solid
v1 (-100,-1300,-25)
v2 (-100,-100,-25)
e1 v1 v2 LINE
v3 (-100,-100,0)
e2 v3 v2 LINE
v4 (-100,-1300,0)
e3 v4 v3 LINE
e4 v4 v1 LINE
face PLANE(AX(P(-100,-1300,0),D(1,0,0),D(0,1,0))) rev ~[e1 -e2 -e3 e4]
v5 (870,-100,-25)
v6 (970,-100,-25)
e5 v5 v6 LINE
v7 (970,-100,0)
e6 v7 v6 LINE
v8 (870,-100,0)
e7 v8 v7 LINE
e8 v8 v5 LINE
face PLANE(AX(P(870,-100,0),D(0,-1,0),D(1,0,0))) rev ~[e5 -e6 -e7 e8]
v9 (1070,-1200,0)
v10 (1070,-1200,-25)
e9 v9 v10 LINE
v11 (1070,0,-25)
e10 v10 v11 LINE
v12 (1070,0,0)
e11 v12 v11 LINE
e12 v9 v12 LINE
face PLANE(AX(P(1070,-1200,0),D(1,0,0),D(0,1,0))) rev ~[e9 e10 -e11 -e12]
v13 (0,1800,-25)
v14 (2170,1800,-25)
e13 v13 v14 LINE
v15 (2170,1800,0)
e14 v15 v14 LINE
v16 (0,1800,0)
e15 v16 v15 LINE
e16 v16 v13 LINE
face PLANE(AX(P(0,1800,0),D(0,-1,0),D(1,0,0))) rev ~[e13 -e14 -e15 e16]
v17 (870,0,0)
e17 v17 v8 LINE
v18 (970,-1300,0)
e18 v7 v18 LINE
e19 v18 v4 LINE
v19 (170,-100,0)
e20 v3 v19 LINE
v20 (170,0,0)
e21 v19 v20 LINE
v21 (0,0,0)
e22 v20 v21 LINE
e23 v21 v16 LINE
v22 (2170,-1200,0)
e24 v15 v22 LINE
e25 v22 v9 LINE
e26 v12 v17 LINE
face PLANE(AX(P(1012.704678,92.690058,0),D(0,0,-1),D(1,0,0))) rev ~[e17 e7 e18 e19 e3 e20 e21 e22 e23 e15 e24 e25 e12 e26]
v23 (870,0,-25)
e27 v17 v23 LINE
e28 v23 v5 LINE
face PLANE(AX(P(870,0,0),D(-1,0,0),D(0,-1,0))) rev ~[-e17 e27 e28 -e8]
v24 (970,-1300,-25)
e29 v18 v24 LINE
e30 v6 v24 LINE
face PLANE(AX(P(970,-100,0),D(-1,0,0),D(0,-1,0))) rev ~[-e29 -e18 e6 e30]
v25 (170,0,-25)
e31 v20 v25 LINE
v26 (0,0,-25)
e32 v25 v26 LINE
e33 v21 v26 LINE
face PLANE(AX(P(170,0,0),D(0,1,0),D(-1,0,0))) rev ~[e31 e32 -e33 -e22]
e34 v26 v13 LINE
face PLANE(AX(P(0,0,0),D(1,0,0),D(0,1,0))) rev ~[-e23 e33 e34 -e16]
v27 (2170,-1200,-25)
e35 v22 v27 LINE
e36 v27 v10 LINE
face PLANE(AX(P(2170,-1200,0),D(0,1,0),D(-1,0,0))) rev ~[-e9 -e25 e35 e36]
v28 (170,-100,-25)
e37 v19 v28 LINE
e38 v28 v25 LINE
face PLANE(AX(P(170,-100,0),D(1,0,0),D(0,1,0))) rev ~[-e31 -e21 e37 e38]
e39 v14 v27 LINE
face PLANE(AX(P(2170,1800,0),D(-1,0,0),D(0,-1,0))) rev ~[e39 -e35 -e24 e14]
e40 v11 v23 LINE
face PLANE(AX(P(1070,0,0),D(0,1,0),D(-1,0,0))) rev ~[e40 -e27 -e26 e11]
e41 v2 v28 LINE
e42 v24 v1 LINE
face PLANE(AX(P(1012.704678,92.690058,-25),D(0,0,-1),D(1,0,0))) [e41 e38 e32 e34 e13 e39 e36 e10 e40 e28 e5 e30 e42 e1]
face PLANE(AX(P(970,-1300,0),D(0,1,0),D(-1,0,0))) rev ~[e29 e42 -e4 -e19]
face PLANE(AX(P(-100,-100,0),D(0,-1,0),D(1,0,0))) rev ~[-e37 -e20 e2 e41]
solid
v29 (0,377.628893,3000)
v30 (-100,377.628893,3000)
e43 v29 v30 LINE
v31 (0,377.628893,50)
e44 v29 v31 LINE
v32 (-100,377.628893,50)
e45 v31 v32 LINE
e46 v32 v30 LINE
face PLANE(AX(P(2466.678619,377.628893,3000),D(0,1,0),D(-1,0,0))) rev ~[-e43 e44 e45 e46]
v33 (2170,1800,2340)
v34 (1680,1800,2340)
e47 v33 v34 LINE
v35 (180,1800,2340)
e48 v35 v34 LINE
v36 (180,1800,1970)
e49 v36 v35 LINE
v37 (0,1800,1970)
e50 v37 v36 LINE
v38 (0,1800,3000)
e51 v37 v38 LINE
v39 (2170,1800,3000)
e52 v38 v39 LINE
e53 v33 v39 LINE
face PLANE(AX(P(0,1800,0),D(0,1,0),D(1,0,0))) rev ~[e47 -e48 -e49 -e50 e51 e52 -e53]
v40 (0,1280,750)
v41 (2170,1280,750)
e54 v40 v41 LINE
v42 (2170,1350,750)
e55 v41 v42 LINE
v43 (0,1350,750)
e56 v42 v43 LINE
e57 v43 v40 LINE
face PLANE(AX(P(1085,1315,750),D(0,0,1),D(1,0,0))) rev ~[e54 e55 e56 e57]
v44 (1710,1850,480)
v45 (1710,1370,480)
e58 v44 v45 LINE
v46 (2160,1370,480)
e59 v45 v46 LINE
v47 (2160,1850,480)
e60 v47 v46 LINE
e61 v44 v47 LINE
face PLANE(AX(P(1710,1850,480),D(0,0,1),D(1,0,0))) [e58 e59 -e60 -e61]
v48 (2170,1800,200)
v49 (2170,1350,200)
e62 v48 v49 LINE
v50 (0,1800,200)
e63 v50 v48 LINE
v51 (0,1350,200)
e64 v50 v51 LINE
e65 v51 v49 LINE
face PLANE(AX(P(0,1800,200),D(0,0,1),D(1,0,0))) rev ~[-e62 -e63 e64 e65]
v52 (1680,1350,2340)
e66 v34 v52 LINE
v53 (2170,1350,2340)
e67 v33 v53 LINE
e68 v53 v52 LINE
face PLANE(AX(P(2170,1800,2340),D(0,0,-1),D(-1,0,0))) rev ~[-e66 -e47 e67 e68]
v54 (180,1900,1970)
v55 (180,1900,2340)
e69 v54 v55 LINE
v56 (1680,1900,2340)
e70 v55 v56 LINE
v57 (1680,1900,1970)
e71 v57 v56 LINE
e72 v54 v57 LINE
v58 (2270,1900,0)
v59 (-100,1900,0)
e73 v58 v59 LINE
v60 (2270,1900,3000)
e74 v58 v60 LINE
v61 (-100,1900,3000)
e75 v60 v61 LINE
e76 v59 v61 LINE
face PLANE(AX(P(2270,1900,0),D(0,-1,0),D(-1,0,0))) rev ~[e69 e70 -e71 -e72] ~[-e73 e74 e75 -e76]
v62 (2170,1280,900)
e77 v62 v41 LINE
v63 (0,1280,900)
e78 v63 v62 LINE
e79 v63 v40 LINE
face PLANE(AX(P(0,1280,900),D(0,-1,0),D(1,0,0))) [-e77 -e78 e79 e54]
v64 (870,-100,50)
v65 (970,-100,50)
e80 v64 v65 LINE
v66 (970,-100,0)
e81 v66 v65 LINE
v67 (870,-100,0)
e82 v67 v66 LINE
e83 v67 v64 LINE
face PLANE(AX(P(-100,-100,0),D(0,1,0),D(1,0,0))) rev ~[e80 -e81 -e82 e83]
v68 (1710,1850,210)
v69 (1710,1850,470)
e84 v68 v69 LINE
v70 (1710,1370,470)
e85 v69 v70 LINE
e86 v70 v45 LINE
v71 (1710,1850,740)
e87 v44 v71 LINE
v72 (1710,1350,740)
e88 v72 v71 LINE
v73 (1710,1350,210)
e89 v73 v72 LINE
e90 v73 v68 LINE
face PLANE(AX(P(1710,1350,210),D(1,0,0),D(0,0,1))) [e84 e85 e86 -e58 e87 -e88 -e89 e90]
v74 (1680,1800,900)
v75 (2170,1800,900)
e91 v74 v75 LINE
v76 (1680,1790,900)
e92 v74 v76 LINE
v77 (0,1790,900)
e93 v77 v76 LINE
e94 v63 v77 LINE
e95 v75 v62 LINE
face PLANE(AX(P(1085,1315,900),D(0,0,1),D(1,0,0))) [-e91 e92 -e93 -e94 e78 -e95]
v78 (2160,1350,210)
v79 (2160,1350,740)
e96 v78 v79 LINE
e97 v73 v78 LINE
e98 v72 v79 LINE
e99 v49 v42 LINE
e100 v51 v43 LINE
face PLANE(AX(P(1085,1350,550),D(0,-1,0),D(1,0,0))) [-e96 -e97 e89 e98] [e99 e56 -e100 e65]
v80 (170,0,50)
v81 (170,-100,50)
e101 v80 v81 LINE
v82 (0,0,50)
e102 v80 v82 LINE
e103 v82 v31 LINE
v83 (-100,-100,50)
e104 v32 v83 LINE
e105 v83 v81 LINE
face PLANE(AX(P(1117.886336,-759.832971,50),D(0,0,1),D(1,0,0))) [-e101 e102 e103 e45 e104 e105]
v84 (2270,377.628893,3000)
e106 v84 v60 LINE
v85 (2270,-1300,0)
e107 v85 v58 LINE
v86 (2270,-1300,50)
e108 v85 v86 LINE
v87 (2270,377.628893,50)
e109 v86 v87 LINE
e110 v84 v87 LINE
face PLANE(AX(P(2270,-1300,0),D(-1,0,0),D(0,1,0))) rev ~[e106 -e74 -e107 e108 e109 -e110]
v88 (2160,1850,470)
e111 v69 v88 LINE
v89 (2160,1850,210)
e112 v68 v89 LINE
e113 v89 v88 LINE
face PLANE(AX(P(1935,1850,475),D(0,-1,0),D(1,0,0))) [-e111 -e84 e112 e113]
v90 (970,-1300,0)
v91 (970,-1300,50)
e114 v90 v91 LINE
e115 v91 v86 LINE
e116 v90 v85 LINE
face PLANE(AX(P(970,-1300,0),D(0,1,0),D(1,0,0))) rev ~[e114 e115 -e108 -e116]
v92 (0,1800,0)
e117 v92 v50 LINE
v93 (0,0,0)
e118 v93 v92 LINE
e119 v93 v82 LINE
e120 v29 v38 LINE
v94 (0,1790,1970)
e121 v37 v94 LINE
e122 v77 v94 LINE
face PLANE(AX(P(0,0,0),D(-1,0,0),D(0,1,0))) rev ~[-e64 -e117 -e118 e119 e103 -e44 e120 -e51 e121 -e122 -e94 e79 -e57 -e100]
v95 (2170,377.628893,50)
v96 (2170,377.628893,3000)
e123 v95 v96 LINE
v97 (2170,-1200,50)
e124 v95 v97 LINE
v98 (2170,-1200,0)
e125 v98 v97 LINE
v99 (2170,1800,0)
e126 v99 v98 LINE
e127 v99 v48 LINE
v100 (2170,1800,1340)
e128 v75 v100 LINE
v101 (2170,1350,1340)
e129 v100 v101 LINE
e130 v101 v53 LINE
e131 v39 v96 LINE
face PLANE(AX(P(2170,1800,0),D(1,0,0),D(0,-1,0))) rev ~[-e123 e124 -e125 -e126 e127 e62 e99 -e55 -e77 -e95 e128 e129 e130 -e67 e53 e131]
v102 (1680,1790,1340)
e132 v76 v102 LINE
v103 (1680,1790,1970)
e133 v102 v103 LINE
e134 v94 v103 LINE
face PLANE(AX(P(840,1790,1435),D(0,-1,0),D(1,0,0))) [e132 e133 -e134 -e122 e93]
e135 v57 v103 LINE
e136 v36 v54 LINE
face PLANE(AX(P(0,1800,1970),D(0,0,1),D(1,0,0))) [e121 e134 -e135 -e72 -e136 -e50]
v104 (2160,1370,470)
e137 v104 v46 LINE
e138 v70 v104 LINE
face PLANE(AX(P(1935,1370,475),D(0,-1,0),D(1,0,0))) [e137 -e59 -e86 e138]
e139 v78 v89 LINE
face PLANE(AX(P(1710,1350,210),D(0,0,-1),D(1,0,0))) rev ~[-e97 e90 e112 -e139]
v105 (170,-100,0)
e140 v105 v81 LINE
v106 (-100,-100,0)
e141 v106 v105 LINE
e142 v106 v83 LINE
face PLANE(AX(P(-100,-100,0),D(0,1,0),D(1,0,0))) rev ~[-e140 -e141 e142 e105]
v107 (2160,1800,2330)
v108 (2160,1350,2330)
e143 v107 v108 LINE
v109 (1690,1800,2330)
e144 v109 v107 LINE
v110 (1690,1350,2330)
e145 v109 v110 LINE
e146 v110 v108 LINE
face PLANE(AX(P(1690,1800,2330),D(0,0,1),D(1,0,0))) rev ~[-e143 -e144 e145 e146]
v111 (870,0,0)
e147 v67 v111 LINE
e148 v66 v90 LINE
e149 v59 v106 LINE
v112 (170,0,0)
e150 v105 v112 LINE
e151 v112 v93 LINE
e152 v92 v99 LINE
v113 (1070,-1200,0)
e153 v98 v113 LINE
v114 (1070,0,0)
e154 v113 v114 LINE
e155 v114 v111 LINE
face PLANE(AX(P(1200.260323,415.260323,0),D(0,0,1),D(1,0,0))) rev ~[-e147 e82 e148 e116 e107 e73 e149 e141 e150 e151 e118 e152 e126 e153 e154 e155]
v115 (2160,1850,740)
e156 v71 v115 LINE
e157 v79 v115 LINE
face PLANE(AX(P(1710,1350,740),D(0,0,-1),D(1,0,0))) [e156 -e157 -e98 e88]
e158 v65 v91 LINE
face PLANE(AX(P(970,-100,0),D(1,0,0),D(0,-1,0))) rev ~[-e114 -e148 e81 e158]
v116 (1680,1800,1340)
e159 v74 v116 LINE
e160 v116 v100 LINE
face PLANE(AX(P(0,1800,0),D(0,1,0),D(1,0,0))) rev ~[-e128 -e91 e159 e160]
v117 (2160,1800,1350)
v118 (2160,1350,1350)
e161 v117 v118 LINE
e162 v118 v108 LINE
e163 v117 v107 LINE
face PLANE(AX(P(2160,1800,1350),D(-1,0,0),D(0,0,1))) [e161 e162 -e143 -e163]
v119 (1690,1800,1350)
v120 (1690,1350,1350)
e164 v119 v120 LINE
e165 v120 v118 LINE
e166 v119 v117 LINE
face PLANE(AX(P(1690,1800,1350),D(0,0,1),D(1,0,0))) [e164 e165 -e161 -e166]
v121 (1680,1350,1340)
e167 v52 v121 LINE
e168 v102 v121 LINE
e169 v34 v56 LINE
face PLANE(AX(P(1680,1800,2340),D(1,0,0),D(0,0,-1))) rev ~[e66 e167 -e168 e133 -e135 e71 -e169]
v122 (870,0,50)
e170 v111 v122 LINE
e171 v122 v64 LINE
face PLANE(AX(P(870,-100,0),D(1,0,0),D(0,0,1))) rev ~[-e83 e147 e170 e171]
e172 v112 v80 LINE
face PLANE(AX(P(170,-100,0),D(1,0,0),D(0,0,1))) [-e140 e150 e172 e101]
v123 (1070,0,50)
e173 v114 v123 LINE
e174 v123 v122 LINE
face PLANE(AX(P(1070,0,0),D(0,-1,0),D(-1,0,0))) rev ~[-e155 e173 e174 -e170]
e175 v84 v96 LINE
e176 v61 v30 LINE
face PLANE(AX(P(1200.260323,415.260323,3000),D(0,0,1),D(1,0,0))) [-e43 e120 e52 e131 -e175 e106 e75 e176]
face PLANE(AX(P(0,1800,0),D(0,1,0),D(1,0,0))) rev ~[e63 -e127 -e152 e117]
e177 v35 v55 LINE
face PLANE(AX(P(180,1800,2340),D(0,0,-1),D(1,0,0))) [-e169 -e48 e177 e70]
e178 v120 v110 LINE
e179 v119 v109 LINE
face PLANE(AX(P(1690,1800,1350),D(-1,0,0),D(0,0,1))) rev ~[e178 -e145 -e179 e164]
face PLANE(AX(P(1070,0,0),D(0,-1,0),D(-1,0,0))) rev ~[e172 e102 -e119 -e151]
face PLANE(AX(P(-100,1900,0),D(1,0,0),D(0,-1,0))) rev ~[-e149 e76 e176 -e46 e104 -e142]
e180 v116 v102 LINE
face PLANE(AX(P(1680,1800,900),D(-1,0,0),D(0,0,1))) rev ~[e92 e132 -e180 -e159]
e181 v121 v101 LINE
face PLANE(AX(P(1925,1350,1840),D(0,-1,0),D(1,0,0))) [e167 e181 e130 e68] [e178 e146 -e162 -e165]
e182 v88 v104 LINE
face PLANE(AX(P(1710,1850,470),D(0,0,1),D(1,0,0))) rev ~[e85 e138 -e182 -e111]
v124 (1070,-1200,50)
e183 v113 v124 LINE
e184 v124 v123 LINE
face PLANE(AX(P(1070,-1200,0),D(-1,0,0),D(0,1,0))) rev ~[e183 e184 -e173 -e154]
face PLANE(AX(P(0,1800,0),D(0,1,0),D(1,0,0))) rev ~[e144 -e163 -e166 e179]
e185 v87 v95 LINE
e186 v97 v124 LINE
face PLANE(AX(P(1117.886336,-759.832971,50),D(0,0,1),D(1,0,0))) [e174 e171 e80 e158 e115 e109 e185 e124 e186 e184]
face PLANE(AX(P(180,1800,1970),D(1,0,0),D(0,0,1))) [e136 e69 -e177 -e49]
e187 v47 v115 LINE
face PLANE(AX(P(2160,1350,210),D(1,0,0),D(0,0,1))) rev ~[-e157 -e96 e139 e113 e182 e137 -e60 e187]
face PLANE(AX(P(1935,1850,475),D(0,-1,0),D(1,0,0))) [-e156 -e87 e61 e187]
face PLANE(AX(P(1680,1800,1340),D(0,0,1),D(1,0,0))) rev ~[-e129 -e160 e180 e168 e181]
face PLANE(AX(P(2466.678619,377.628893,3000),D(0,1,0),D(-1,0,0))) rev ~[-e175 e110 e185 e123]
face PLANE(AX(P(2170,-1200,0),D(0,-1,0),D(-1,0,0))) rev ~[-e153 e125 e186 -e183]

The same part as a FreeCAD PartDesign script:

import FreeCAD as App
import Part
import Sketcher

doc = App.newDocument("Part")
body = doc.addObject("PartDesign::Body", "Body")

# Sketch on XY plane
sketch1 = body.newObject("Sketcher::SketchObject", "Sketch")
sketch1.AttachmentSupport = (doc.getObject("XY_Plane"), [""])
sketch1.MapMode = "FlatFace"
sketch1.addGeometry(Part.LineSegment(App.Vector(2270, 1900, 0), App.Vector(-100, 1900, 0)), False)
sketch1.addGeometry(Part.LineSegment(App.Vector(-100, 1900, 0), App.Vector(-100, -100, 0)), False)
sketch1.addGeometry(Part.LineSegment(App.Vector(-100, -100, 0), App.Vector(970, -100, 0)), False)
sketch1.addGeometry(Part.LineSegment(App.Vector(970, -100, 0), App.Vector(970, -1300, 0)), False)
sketch1.addGeometry(Part.LineSegment(App.Vector(970, -1300, 0), App.Vector(2270, -1300, 0)), False)
sketch1.addGeometry(Part.LineSegment(App.Vector(2270, -1300, 0), App.Vector(2270, 1900, 0)), False)
sketch1.addGeometry(Part.LineSegment(App.Vector(1070, -1200, 0), App.Vector(1070, 0, 0)), False)
sketch1.addGeometry(Part.LineSegment(App.Vector(1070, 0, 0), App.Vector(0, 0, 0)), False)
sketch1.addGeometry(Part.LineSegment(App.Vector(0, 0, 0), App.Vector(0, 1800, 0)), False)
sketch1.addGeometry(Part.LineSegment(App.Vector(0, 1800, 0), App.Vector(2170, 1800, 0)), False)
sketch1.addGeometry(Part.LineSegment(App.Vector(2170, 1800, 0), App.Vector(2170, -1200, 0)), False)
sketch1.addGeometry(Part.LineSegment(App.Vector(2170, -1200, 0), App.Vector(1070, -1200, 0)), False)
sketch1.addConstraint(Sketcher.Constraint("Coincident", 0, 2, 1, 1))
sketch1.addConstraint(Sketcher.Constraint("Coincident", 1, 2, 2, 1))
sketch1.addConstraint(Sketcher.Constraint("Coincident", 2, 2, 3, 1))
sketch1.addConstraint(Sketcher.Constraint("Coincident", 3, 2, 4, 1))
sketch1.addConstraint(Sketcher.Constraint("Coincident", 4, 2, 5, 1))
sketch1.addConstraint(Sketcher.Constraint("Coincident", 5, 2, 0, 1))
sketch1.addConstraint(Sketcher.Constraint("Coincident", 6, 2, 7, 1))
sketch1.addConstraint(Sketcher.Constraint("Coincident", 7, 2, 8, 1))
sketch1.addConstraint(Sketcher.Constraint("Coincident", 8, 2, 9, 1))
sketch1.addConstraint(Sketcher.Constraint("Coincident", 9, 2, 10, 1))
sketch1.addConstraint(Sketcher.Constraint("Coincident", 10, 2, 11, 1))
sketch1.addConstraint(Sketcher.Constraint("Coincident", 11, 2, 6, 1))
sketch1.addConstraint(Sketcher.Constraint("Horizontal", 0))
sketch1.addConstraint(Sketcher.Constraint("Vertical", 1))
sketch1.addConstraint(Sketcher.Constraint("Horizontal", 2))
sketch1.addConstraint(Sketcher.Constraint("Vertical", 3))
sketch1.addConstraint(Sketcher.Constraint("Horizontal", 4))
sketch1.addConstraint(Sketcher.Constraint("Vertical", 5))
sketch1.addConstraint(Sketcher.Constraint("Vertical", 6))
sketch1.addConstraint(Sketcher.Constraint("Horizontal", 7))
sketch1.addConstraint(Sketcher.Constraint("Vertical", 8))
sketch1.addConstraint(Sketcher.Constraint("Horizontal", 9))
sketch1.addConstraint(Sketcher.Constraint("Vertical", 10))
sketch1.addConstraint(Sketcher.Constraint("Horizontal", 11))
sketch1.addConstraint(Sketcher.Constraint("Coincident", 7, 2, -1, 1))
sketch1.addConstraint(Sketcher.Constraint("Equal", 2, 7))
sketch1.addConstraint(Sketcher.Constraint("Equal", 3, 6))
sketch1.addConstraint(Sketcher.Constraint("DistanceX", 0, 2, 0, 1, 2370.0))
sketch1.addConstraint(Sketcher.Constraint("DistanceX", 2, 1, 2, 2, 1070.0))
sketch1.addConstraint(Sketcher.Constraint("DistanceX", 9, 1, 9, 2, 2170.0))
sketch1.addConstraint(Sketcher.Constraint("DistanceY", 1, 2, 1, 1, 2000.0))
sketch1.addConstraint(Sketcher.Constraint("DistanceY", 3, 2, 3, 1, 1200.0))
sketch1.addConstraint(Sketcher.Constraint("DistanceY", 8, 1, 8, 2, 1800.0))
sketch1.addConstraint(Sketcher.Constraint("DistanceX", 0, 2, -1, 1, 100.0))
sketch1.addConstraint(Sketcher.Constraint("DistanceY", -1, 1, 0, 2, 1900.0))
pad1 = body.newObject("PartDesign::Pad", "Pad")
pad1.Profile = sketch1
pad1.Length = 3000

# Sketch on XZ plane
sketch2 = body.newObject("Sketcher::SketchObject", "Sketch001")
sketch2.AttachmentSupport = (doc.getObject("XZ_Plane"), [""])
sketch2.MapMode = "FlatFace"
sketch2.AttachmentOffset = App.Placement(App.Vector(0, 0, 100), App.Rotation())
sketch2.addGeometry(Part.LineSegment(App.Vector(170, 2100, 0), App.Vector(170, 0, 0)), False)
sketch2.addGeometry(Part.LineSegment(App.Vector(170, 0, 0), App.Vector(870, 0, 0)), False)
sketch2.addGeometry(Part.LineSegment(App.Vector(870, 0, 0), App.Vector(870, 2100, 0)), False)
sketch2.addGeometry(Part.LineSegment(App.Vector(870, 2100, 0), App.Vector(170, 2100, 0)), False)
sketch2.addConstraint(Sketcher.Constraint("Coincident", 0, 2, 1, 1))
sketch2.addConstraint(Sketcher.Constraint("Coincident", 1, 2, 2, 1))
sketch2.addConstraint(Sketcher.Constraint("Coincident", 2, 2, 3, 1))
sketch2.addConstraint(Sketcher.Constraint("Coincident", 3, 2, 0, 1))
sketch2.addConstraint(Sketcher.Constraint("Vertical", 0))
sketch2.addConstraint(Sketcher.Constraint("Horizontal", 1))
sketch2.addConstraint(Sketcher.Constraint("Vertical", 2))
sketch2.addConstraint(Sketcher.Constraint("Horizontal", 3))
sketch2.addConstraint(Sketcher.Constraint("PointOnObject", 0, 2, -1))
sketch2.addConstraint(Sketcher.Constraint("DistanceX", 1, 1, 1, 2, 700.0))
sketch2.addConstraint(Sketcher.Constraint("DistanceY", 0, 2, 0, 1, 2100.0))
sketch2.addConstraint(Sketcher.Constraint("DistanceX", -1, 1, 0, 2, 170.0))
pocket1 = body.newObject("PartDesign::Pocket", "Pocket")
pocket1.Profile = sketch2
pocket1.Length = 100

# Sketch on XZ plane
sketch3 = body.newObject("Sketcher::SketchObject", "Sketch002")
sketch3.AttachmentSupport = (doc.getObject("XZ_Plane"), [""])
sketch3.MapMode = "FlatFace"
sketch3.AttachmentOffset = App.Placement(App.Vector(0, 0, -1800), App.Rotation())
sketch3.addGeometry(Part.LineSegment(App.Vector(180, 2340, 0), App.Vector(180, 1970, 0)), False)
sketch3.addGeometry(Part.LineSegment(App.Vector(180, 1970, 0), App.Vector(1680, 1970, 0)), False)
sketch3.addGeometry(Part.LineSegment(App.Vector(1680, 1970, 0), App.Vector(1680, 2340, 0)), False)
sketch3.addGeometry(Part.LineSegment(App.Vector(1680, 2340, 0), App.Vector(180, 2340, 0)), False)
sketch3.addConstraint(Sketcher.Constraint("Coincident", 0, 2, 1, 1))
sketch3.addConstraint(Sketcher.Constraint("Coincident", 1, 2, 2, 1))
sketch3.addConstraint(Sketcher.Constraint("Coincident", 2, 2, 3, 1))
sketch3.addConstraint(Sketcher.Constraint("Coincident", 3, 2, 0, 1))
sketch3.addConstraint(Sketcher.Constraint("Vertical", 0))
sketch3.addConstraint(Sketcher.Constraint("Horizontal", 1))
sketch3.addConstraint(Sketcher.Constraint("Vertical", 2))
sketch3.addConstraint(Sketcher.Constraint("Horizontal", 3))
sketch3.addConstraint(Sketcher.Constraint("DistanceX", 1, 1, 1, 2, 1500.0))
sketch3.addConstraint(Sketcher.Constraint("DistanceY", 0, 2, 0, 1, 370.0))
sketch3.addConstraint(Sketcher.Constraint("DistanceX", -1, 1, 0, 2, 180.0))
sketch3.addConstraint(Sketcher.Constraint("DistanceY", -1, 1, 0, 2, 1970.0))
pocket2 = body.newObject("PartDesign::Pocket", "Pocket001")
pocket2.Profile = sketch3
pocket2.Type = "ThroughAll"

# Sketch on XY plane
sketch4 = body.newObject("Sketcher::SketchObject", "Sketch003")
sketch4.AttachmentSupport = (doc.getObject("XY_Plane"), [""])
sketch4.MapMode = "FlatFace"
sketch4.AttachmentOffset = App.Placement(App.Vector(0, 0, 3000), App.Rotation())
sketch4.addGeometry(Part.LineSegment(App.Vector(-472, -1550, 0), App.Vector(2467, -1550, 0)), False)
sketch4.addGeometry(Part.LineSegment(App.Vector(2467, -1550, 0), App.Vector(2467, 378, 0)), False)
sketch4.addGeometry(Part.LineSegment(App.Vector(2467, 378, 0), App.Vector(-472, 378, 0)), False)
sketch4.addGeometry(Part.LineSegment(App.Vector(-472, 378, 0), App.Vector(-472, -1550, 0)), False)
sketch4.addConstraint(Sketcher.Constraint("Coincident", 0, 2, 1, 1))
sketch4.addConstraint(Sketcher.Constraint("Coincident", 1, 2, 2, 1))
sketch4.addConstraint(Sketcher.Constraint("Coincident", 2, 2, 3, 1))
sketch4.addConstraint(Sketcher.Constraint("Coincident", 3, 2, 0, 1))
sketch4.addConstraint(Sketcher.Constraint("Horizontal", 0))
sketch4.addConstraint(Sketcher.Constraint("Vertical", 1))
sketch4.addConstraint(Sketcher.Constraint("Horizontal", 2))
sketch4.addConstraint(Sketcher.Constraint("Vertical", 3))
sketch4.addConstraint(Sketcher.Constraint("DistanceY", 0, 2, -1, 1, 1550.028801))
sketch4.addConstraint(Sketcher.Constraint("DistanceX", 0, 1, 0, 2, 2938.759506))
sketch4.addConstraint(Sketcher.Constraint("DistanceY", 1, 1, 1, 2, 1927.657694))
sketch4.addConstraint(Sketcher.Constraint("DistanceX", -1, 1, 0, 2, 2466.678619))
pocket3 = body.newObject("PartDesign::Pocket", "Pocket002")
pocket3.Profile = sketch4
pocket3.Length = 2950

# Sketch on XZ plane
sketch5 = body.newObject("Sketcher::SketchObject", "Sketch004")
sketch5.AttachmentSupport = (doc.getObject("XZ_Plane"), [""])
sketch5.MapMode = "FlatFace"
sketch5.AttachmentOffset = App.Placement(App.Vector(0, 0, -1800), App.Rotation())
sketch5.addGeometry(Part.LineSegment(App.Vector(0, 900, 0), App.Vector(0, 200, 0)), False)
sketch5.addGeometry(Part.LineSegment(App.Vector(0, 200, 0), App.Vector(2170, 200, 0)), False)
sketch5.addGeometry(Part.LineSegment(App.Vector(2170, 200, 0), App.Vector(2170, 900, 0)), False)
sketch5.addGeometry(Part.LineSegment(App.Vector(2170, 900, 0), App.Vector(0, 900, 0)), False)
sketch5.addConstraint(Sketcher.Constraint("Coincident", 0, 2, 1, 1))
sketch5.addConstraint(Sketcher.Constraint("Coincident", 1, 2, 2, 1))
sketch5.addConstraint(Sketcher.Constraint("Coincident", 2, 2, 3, 1))
sketch5.addConstraint(Sketcher.Constraint("Coincident", 3, 2, 0, 1))
sketch5.addConstraint(Sketcher.Constraint("Vertical", 0))
sketch5.addConstraint(Sketcher.Constraint("Horizontal", 1))
sketch5.addConstraint(Sketcher.Constraint("Vertical", 2))
sketch5.addConstraint(Sketcher.Constraint("Horizontal", 3))
sketch5.addConstraint(Sketcher.Constraint("PointOnObject", 0, 2, -2))
sketch5.addConstraint(Sketcher.Constraint("DistanceX", 1, 1, 1, 2, 2170.0))
sketch5.addConstraint(Sketcher.Constraint("DistanceY", 0, 2, 0, 1, 700.0))
sketch5.addConstraint(Sketcher.Constraint("DistanceY", -1, 1, 0, 2, 200.0))
pad2 = body.newObject("PartDesign::Pad", "Pad001")
pad2.Profile = sketch5
pad2.Length = 450

# Sketch on XY plane
sketch6 = body.newObject("Sketcher::SketchObject", "Sketch005")
sketch6.AttachmentSupport = (doc.getObject("XY_Plane"), [""])
sketch6.MapMode = "FlatFace"
sketch6.AttachmentOffset = App.Placement(App.Vector(0, 0, 900), App.Rotation())
sketch6.addGeometry(Part.LineSegment(App.Vector(0, 1280, 0), App.Vector(2170, 1280, 0)), False)
sketch6.addGeometry(Part.LineSegment(App.Vector(2170, 1280, 0), App.Vector(2170, 1800, 0)), False)
sketch6.addGeometry(Part.LineSegment(App.Vector(2170, 1800, 0), App.Vector(0, 1800, 0)), False)
sketch6.addGeometry(Part.LineSegment(App.Vector(0, 1800, 0), App.Vector(0, 1280, 0)), False)
sketch6.addConstraint(Sketcher.Constraint("Coincident", 0, 2, 1, 1))
sketch6.addConstraint(Sketcher.Constraint("Coincident", 1, 2, 2, 1))
sketch6.addConstraint(Sketcher.Constraint("Coincident", 2, 2, 3, 1))
sketch6.addConstraint(Sketcher.Constraint("Coincident", 3, 2, 0, 1))
sketch6.addConstraint(Sketcher.Constraint("Horizontal", 0))
sketch6.addConstraint(Sketcher.Constraint("Vertical", 1))
sketch6.addConstraint(Sketcher.Constraint("Horizontal", 2))
sketch6.addConstraint(Sketcher.Constraint("Vertical", 3))
sketch6.addConstraint(Sketcher.Constraint("PointOnObject", 2, 2, -2))
sketch6.addConstraint(Sketcher.Constraint("DistanceX", 0, 1, 0, 2, 2170.0))
sketch6.addConstraint(Sketcher.Constraint("DistanceY", 1, 1, 1, 2, 520.0))
sketch6.addConstraint(Sketcher.Constraint("DistanceY", -1, 1, 0, 2, 1280.0))
pad3 = body.newObject("PartDesign::Pad", "Pad002")
pad3.Profile = sketch6
pad3.Length = 150
pad3.Reversed = True

# Sketch on XZ plane
sketch7 = body.newObject("Sketcher::SketchObject", "Sketch006")
sketch7.AttachmentSupport = (doc.getObject("XZ_Plane"), [""])
sketch7.MapMode = "FlatFace"
sketch7.AttachmentOffset = App.Placement(App.Vector(0, 0, -1800), App.Rotation())
sketch7.addGeometry(Part.LineSegment(App.Vector(0, 1970, 0), App.Vector(0, 900, 0)), False)
sketch7.addGeometry(Part.LineSegment(App.Vector(0, 900, 0), App.Vector(1680, 900, 0)), False)
sketch7.addGeometry(Part.LineSegment(App.Vector(1680, 900, 0), App.Vector(1680, 1970, 0)), False)
sketch7.addGeometry(Part.LineSegment(App.Vector(1680, 1970, 0), App.Vector(0, 1970, 0)), False)
sketch7.addConstraint(Sketcher.Constraint("Coincident", 0, 2, 1, 1))
sketch7.addConstraint(Sketcher.Constraint("Coincident", 1, 2, 2, 1))
sketch7.addConstraint(Sketcher.Constraint("Coincident", 2, 2, 3, 1))
sketch7.addConstraint(Sketcher.Constraint("Coincident", 3, 2, 0, 1))
sketch7.addConstraint(Sketcher.Constraint("Vertical", 0))
sketch7.addConstraint(Sketcher.Constraint("Horizontal", 1))
sketch7.addConstraint(Sketcher.Constraint("Vertical", 2))
sketch7.addConstraint(Sketcher.Constraint("Horizontal", 3))
sketch7.addConstraint(Sketcher.Constraint("PointOnObject", 0, 2, -2))
sketch7.addConstraint(Sketcher.Constraint("DistanceX", 1, 1, 1, 2, 1680.0))
sketch7.addConstraint(Sketcher.Constraint("DistanceY", 0, 2, 0, 1, 1070.0))
sketch7.addConstraint(Sketcher.Constraint("DistanceY", -1, 1, 0, 2, 900.0))
pad4 = body.newObject("PartDesign::Pad", "Pad003")
pad4.Profile = sketch7
pad4.Length = 10

# Sketch on XZ plane
sketch8 = body.newObject("Sketcher::SketchObject", "Sketch007")
sketch8.AttachmentSupport = (doc.getObject("XZ_Plane"), [""])
sketch8.MapMode = "FlatFace"
sketch8.AttachmentOffset = App.Placement(App.Vector(0, 0, -1350), App.Rotation())
sketch8.addGeometry(Part.LineSegment(App.Vector(1710, 740, 0), App.Vector(1710, 210, 0)), False)
sketch8.addGeometry(Part.LineSegment(App.Vector(1710, 210, 0), App.Vector(2160, 210, 0)), False)
sketch8.addGeometry(Part.LineSegment(App.Vector(2160, 210, 0), App.Vector(2160, 740, 0)), False)
sketch8.addGeometry(Part.LineSegment(App.Vector(2160, 740, 0), App.Vector(1710, 740, 0)), False)
sketch8.addConstraint(Sketcher.Constraint("Coincident", 0, 2, 1, 1))
sketch8.addConstraint(Sketcher.Constraint("Coincident", 1, 2, 2, 1))
sketch8.addConstraint(Sketcher.Constraint("Coincident", 2, 2, 3, 1))
sketch8.addConstraint(Sketcher.Constraint("Coincident", 3, 2, 0, 1))
sketch8.addConstraint(Sketcher.Constraint("Vertical", 0))
sketch8.addConstraint(Sketcher.Constraint("Horizontal", 1))
sketch8.addConstraint(Sketcher.Constraint("Vertical", 2))
sketch8.addConstraint(Sketcher.Constraint("Horizontal", 3))
sketch8.addConstraint(Sketcher.Constraint("DistanceX", 1, 1, 1, 2, 450.0))
sketch8.addConstraint(Sketcher.Constraint("DistanceY", 0, 2, 0, 1, 530.0))
sketch8.addConstraint(Sketcher.Constraint("DistanceX", -1, 1, 0, 2, 1710.0))
sketch8.addConstraint(Sketcher.Constraint("DistanceY", -1, 1, 0, 2, 210.0))
pocket4 = body.newObject("PartDesign::Pocket", "Pocket003")
pocket4.Profile = sketch8
pocket4.Length = 500

# Sketch on XZ plane
sketch9 = body.newObject("Sketcher::SketchObject", "Sketch008")
sketch9.AttachmentSupport = (doc.getObject("XZ_Plane"), [""])
sketch9.MapMode = "FlatFace"
sketch9.AttachmentOffset = App.Placement(App.Vector(0, 0, -1850), App.Rotation())
sketch9.addGeometry(Part.LineSegment(App.Vector(1710, 480, 0), App.Vector(1710, 470, 0)), False)
sketch9.addGeometry(Part.LineSegment(App.Vector(1710, 470, 0), App.Vector(2160, 470, 0)), False)
sketch9.addGeometry(Part.LineSegment(App.Vector(2160, 470, 0), App.Vector(2160, 480, 0)), False)
sketch9.addGeometry(Part.LineSegment(App.Vector(2160, 480, 0), App.Vector(1710, 480, 0)), False)
sketch9.addConstraint(Sketcher.Constraint("Coincident", 0, 2, 1, 1))
sketch9.addConstraint(Sketcher.Constraint("Coincident", 1, 2, 2, 1))
sketch9.addConstraint(Sketcher.Constraint("Coincident", 2, 2, 3, 1))
sketch9.addConstraint(Sketcher.Constraint("Coincident", 3, 2, 0, 1))
sketch9.addConstraint(Sketcher.Constraint("Vertical", 0))
sketch9.addConstraint(Sketcher.Constraint("Horizontal", 1))
sketch9.addConstraint(Sketcher.Constraint("Vertical", 2))
sketch9.addConstraint(Sketcher.Constraint("Horizontal", 3))
sketch9.addConstraint(Sketcher.Constraint("DistanceX", 1, 1, 1, 2, 450.0))
sketch9.addConstraint(Sketcher.Constraint("DistanceY", 0, 2, 0, 1, 10.0))
sketch9.addConstraint(Sketcher.Constraint("DistanceX", -1, 1, 0, 2, 1710.0))
sketch9.addConstraint(Sketcher.Constraint("DistanceY", -1, 1, 0, 2, 470.0))
pad5 = body.newObject("PartDesign::Pad", "Pad004")
pad5.Profile = sketch9
pad5.Length = 480

# Sketch on XZ plane
sketch10 = body.newObject("Sketcher::SketchObject", "Sketch009")
sketch10.AttachmentSupport = (doc.getObject("XZ_Plane"), [""])
sketch10.MapMode = "FlatFace"
sketch10.AttachmentOffset = App.Placement(App.Vector(0, 0, -1800), App.Rotation())
sketch10.addGeometry(Part.LineSegment(App.Vector(2170, 2340, 0), App.Vector(1680, 2340, 0)), False)
sketch10.addGeometry(Part.LineSegment(App.Vector(1680, 2340, 0), App.Vector(1680, 1340, 0)), False)
sketch10.addGeometry(Part.LineSegment(App.Vector(1680, 1340, 0), App.Vector(2170, 1340, 0)), False)
sketch10.addGeometry(Part.LineSegment(App.Vector(2170, 1340, 0), App.Vector(2170, 2340, 0)), False)
sketch10.addGeometry(Part.LineSegment(App.Vector(2160, 1350, 0), App.Vector(1690, 1350, 0)), False)
sketch10.addGeometry(Part.LineSegment(App.Vector(1690, 1350, 0), App.Vector(1690, 2330, 0)), False)
sketch10.addGeometry(Part.LineSegment(App.Vector(1690, 2330, 0), App.Vector(2160, 2330, 0)), False)
sketch10.addGeometry(Part.LineSegment(App.Vector(2160, 2330, 0), App.Vector(2160, 1350, 0)), False)
sketch10.addConstraint(Sketcher.Constraint("Coincident", 0, 2, 1, 1))
sketch10.addConstraint(Sketcher.Constraint("Coincident", 1, 2, 2, 1))
sketch10.addConstraint(Sketcher.Constraint("Coincident", 2, 2, 3, 1))
sketch10.addConstraint(Sketcher.Constraint("Coincident", 3, 2, 0, 1))
sketch10.addConstraint(Sketcher.Constraint("Coincident", 4, 2, 5, 1))
sketch10.addConstraint(Sketcher.Constraint("Coincident", 5, 2, 6, 1))
sketch10.addConstraint(Sketcher.Constraint("Coincident", 6, 2, 7, 1))
sketch10.addConstraint(Sketcher.Constraint("Coincident", 7, 2, 4, 1))
sketch10.addConstraint(Sketcher.Constraint("Horizontal", 0))
sketch10.addConstraint(Sketcher.Constraint("Vertical", 1))
sketch10.addConstraint(Sketcher.Constraint("Horizontal", 2))
sketch10.addConstraint(Sketcher.Constraint("Vertical", 3))
sketch10.addConstraint(Sketcher.Constraint("Horizontal", 4))
sketch10.addConstraint(Sketcher.Constraint("Vertical", 5))
sketch10.addConstraint(Sketcher.Constraint("Horizontal", 6))
sketch10.addConstraint(Sketcher.Constraint("Vertical", 7))
sketch10.addConstraint(Sketcher.Constraint("DistanceX", 0, 2, 0, 1, 490.0))
sketch10.addConstraint(Sketcher.Constraint("DistanceX", 4, 2, 4, 1, 470.0))
sketch10.addConstraint(Sketcher.Constraint("DistanceY", 1, 2, 1, 1, 1000.0))
sketch10.addConstraint(Sketcher.Constraint("DistanceY", 5, 1, 5, 2, 980.0))
sketch10.addConstraint(Sketcher.Constraint("DistanceX", -1, 1, 0, 2, 1680.0))
sketch10.addConstraint(Sketcher.Constraint("DistanceY", -1, 1, 0, 2, 2340.0))
sketch10.addConstraint(Sketcher.Constraint("DistanceX", -1, 1, 4, 2, 1690.0))
sketch10.addConstraint(Sketcher.Constraint("DistanceY", -1, 1, 4, 2, 1350.0))
pad6 = body.newObject("PartDesign::Pad", "Pad005")
pad6.Profile = sketch10
pad6.Length = 450
body2 = doc.addObject("PartDesign::Body", "Body001")

# Sketch on XY plane
sketch11 = body2.newObject("Sketcher::SketchObject", "Sketch010")
sketch11.AttachmentSupport = (doc.getObject("XY_Plane001"), [""])
sketch11.MapMode = "FlatFace"
sketch11.addGeometry(Part.LineSegment(App.Vector(-100, -1300, 0), App.Vector(-100, -100, 0)), False)
sketch11.addGeometry(Part.LineSegment(App.Vector(-100, -100, 0), App.Vector(170, -100, 0)), False)
sketch11.addGeometry(Part.LineSegment(App.Vector(170, -100, 0), App.Vector(170, 0, 0)), False)
sketch11.addGeometry(Part.LineSegment(App.Vector(170, 0, 0), App.Vector(0, 0, 0)), False)
sketch11.addGeometry(Part.LineSegment(App.Vector(0, 0, 0), App.Vector(0, 1800, 0)), False)
sketch11.addGeometry(Part.LineSegment(App.Vector(0, 1800, 0), App.Vector(2170, 1800, 0)), False)
sketch11.addGeometry(Part.LineSegment(App.Vector(2170, 1800, 0), App.Vector(2170, -1200, 0)), False)
sketch11.addGeometry(Part.LineSegment(App.Vector(2170, -1200, 0), App.Vector(1070, -1200, 0)), False)
sketch11.addGeometry(Part.LineSegment(App.Vector(1070, -1200, 0), App.Vector(1070, 0, 0)), False)
sketch11.addGeometry(Part.LineSegment(App.Vector(1070, 0, 0), App.Vector(870, 0, 0)), False)
sketch11.addGeometry(Part.LineSegment(App.Vector(870, 0, 0), App.Vector(870, -100, 0)), False)
sketch11.addGeometry(Part.LineSegment(App.Vector(870, -100, 0), App.Vector(970, -100, 0)), False)
sketch11.addGeometry(Part.LineSegment(App.Vector(970, -100, 0), App.Vector(970, -1300, 0)), False)
sketch11.addGeometry(Part.LineSegment(App.Vector(970, -1300, 0), App.Vector(-100, -1300, 0)), False)
sketch11.addConstraint(Sketcher.Constraint("Coincident", 0, 2, 1, 1))
sketch11.addConstraint(Sketcher.Constraint("Coincident", 1, 2, 2, 1))
sketch11.addConstraint(Sketcher.Constraint("Coincident", 2, 2, 3, 1))
sketch11.addConstraint(Sketcher.Constraint("Coincident", 3, 2, 4, 1))
sketch11.addConstraint(Sketcher.Constraint("Coincident", 4, 2, 5, 1))
sketch11.addConstraint(Sketcher.Constraint("Coincident", 5, 2, 6, 1))
sketch11.addConstraint(Sketcher.Constraint("Coincident", 6, 2, 7, 1))
sketch11.addConstraint(Sketcher.Constraint("Coincident", 7, 2, 8, 1))
sketch11.addConstraint(Sketcher.Constraint("Coincident", 8, 2, 9, 1))
sketch11.addConstraint(Sketcher.Constraint("Coincident", 9, 2, 10, 1))
sketch11.addConstraint(Sketcher.Constraint("Coincident", 10, 2, 11, 1))
sketch11.addConstraint(Sketcher.Constraint("Coincident", 11, 2, 12, 1))
sketch11.addConstraint(Sketcher.Constraint("Coincident", 12, 2, 13, 1))
sketch11.addConstraint(Sketcher.Constraint("Coincident", 13, 2, 0, 1))
sketch11.addConstraint(Sketcher.Constraint("Vertical", 0))
sketch11.addConstraint(Sketcher.Constraint("Horizontal", 1))
sketch11.addConstraint(Sketcher.Constraint("Vertical", 2))
sketch11.addConstraint(Sketcher.Constraint("Horizontal", 3))
sketch11.addConstraint(Sketcher.Constraint("Vertical", 4))
sketch11.addConstraint(Sketcher.Constraint("Horizontal", 5))
sketch11.addConstraint(Sketcher.Constraint("Vertical", 6))
sketch11.addConstraint(Sketcher.Constraint("Horizontal", 7))
sketch11.addConstraint(Sketcher.Constraint("Vertical", 8))
sketch11.addConstraint(Sketcher.Constraint("Horizontal", 9))
sketch11.addConstraint(Sketcher.Constraint("Vertical", 10))
sketch11.addConstraint(Sketcher.Constraint("Horizontal", 11))
sketch11.addConstraint(Sketcher.Constraint("Vertical", 12))
sketch11.addConstraint(Sketcher.Constraint("Horizontal", 13))
sketch11.addConstraint(Sketcher.Constraint("Coincident", 3, 2, -1, 1))
sketch11.addConstraint(Sketcher.Constraint("PointOnObject", 8, 2, -1))
sketch11.addConstraint(Sketcher.Constraint("Horizontal", 1, 2, 10, 2))
sketch11.addConstraint(Sketcher.Constraint("Equal", 11, 2))
sketch11.addConstraint(Sketcher.Constraint("Equal", 0, 8))
sketch11.addConstraint(Sketcher.Constraint("DistanceX", 1, 1, 1, 2, 270.0))
sketch11.addConstraint(Sketcher.Constraint("DistanceX", 3, 2, 3, 1, 170.0))
sketch11.addConstraint(Sketcher.Constraint("DistanceX", 5, 1, 5, 2, 2170.0))
sketch11.addConstraint(Sketcher.Constraint("DistanceX", 7, 2, 7, 1, 1100.0))
sketch11.addConstraint(Sketcher.Constraint("DistanceX", 9, 2, 9, 1, 200.0))
sketch11.addConstraint(Sketcher.Constraint("DistanceX", 11, 1, 11, 2, 100.0))
sketch11.addConstraint(Sketcher.Constraint("DistanceY", 0, 1, 0, 2, 1200.0))
sketch11.addConstraint(Sketcher.Constraint("DistanceY", 4, 1, 4, 2, 1800.0))
pad7 = body2.newObject("PartDesign::Pad", "Pad006")
pad7.Profile = sketch11
pad7.Length = 25
pad7.Reversed = True

doc.recompute()
